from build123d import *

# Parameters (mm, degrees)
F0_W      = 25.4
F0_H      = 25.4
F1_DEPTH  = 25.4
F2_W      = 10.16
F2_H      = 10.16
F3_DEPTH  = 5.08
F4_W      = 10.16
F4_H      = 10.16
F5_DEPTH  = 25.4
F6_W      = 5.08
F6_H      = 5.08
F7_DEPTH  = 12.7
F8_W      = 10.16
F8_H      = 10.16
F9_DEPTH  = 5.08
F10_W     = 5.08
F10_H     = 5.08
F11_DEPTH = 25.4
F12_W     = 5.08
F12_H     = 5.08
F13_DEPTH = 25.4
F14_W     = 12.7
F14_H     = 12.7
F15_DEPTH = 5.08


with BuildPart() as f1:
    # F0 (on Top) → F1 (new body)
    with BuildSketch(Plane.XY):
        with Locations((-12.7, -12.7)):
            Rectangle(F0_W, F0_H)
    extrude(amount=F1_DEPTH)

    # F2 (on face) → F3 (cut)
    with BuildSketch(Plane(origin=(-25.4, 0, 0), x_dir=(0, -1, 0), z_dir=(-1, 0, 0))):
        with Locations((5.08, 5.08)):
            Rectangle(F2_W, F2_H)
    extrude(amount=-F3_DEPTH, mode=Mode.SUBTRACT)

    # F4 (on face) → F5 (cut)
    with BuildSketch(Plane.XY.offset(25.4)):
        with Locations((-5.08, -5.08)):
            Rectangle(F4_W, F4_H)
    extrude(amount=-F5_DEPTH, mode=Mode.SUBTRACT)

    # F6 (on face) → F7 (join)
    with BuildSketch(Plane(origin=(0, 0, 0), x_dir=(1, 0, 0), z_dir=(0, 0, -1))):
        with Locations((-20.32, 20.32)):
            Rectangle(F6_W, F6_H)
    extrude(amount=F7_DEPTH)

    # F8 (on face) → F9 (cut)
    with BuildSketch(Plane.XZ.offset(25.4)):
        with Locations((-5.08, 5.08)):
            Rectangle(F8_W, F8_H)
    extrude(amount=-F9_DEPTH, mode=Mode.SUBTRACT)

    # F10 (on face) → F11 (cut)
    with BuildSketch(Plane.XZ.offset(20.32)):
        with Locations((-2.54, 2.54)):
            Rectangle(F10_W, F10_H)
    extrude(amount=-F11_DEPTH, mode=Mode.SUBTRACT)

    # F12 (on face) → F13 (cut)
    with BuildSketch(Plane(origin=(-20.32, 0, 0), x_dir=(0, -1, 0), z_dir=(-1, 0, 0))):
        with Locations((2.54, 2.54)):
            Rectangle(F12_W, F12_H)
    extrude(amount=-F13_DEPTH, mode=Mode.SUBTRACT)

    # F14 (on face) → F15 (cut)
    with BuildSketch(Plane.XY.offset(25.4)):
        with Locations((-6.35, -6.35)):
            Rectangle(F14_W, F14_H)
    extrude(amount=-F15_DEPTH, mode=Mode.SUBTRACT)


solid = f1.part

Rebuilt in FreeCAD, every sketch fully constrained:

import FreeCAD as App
import Part
import Sketcher
Q = App.Units.Quantity


def add_polygon(sketch, points):
    """Adds a closed chain of lines whose ends are joined by coincident constraints."""
    first, n = sketch.GeometryCount, len(points)
    for a, b in zip(points, points[1:] + points[:1]):
        sketch.addGeometry(Part.LineSegment(App.Vector(*a, 0), App.Vector(*b, 0)), False)
    for i in range(n):
        sketch.addConstraint(Sketcher.Constraint("Coincident", first + i, 2, first + (i + 1) % n, 1))

doc = App.newDocument("Part")
params = doc.addObject("Spreadsheet::Sheet", "Params")
for row, (alias, value) in enumerate([
    ("sketch1_width", "1 in"),
    ("pad1_length", "1 in"),
    ("sketch2_width", "0.4 in"),
    ("pocket1_length", "0.2 in"),
    ("sketch3_width", "0.4 in"),
    ("pocket2_length", "1 in"),
    ("sketch4_width", "0.2 in"),
    ("pad2_length", "0.5 in"),
    ("sketch5_width", "0.4 in"),
    ("pocket3_length", "0.2 in"),
    ("sketch6_width", "0.2 in"),
    ("pocket4_length", "1 in"),
    ("sketch7_width", "0.2 in"),
    ("pocket5_length", "1 in"),
    ("sketch8_width", "0.5 in"),
    ("pocket6_length", "0.2 in"),
], start=1):
    params.set(f"A{row}", alias)
    params.set(f"B{row}", "=" + value)
    params.setAlias(f"B{row}", alias)

body = doc.addObject("PartDesign::Body", "Body")

# Sketch on XY plane
sketch1 = doc.addObject("Sketcher::SketchObject", "Sketch")
body.addObject(sketch1)
sketch1.AttachmentSupport = (doc.XY_Plane, [""])
sketch1.MapMode = "FlatFace"
add_polygon(sketch1, [(-25, 0), (-25, -25), (0, -25), (0, 0)])  # lines 0-3
sketch1.addConstraint([
    Sketcher.Constraint("Vertical", 0),
    Sketcher.Constraint("Horizontal", 1),
    Sketcher.Constraint("Vertical", 2),
    Sketcher.Constraint("Horizontal", 3),
    Sketcher.Constraint("Coincident", 2, 2, -1, 1),
    Sketcher.Constraint("Equal", 3, 0),
    Sketcher.Constraint("DistanceX", 1, 1, 1, 2, Q("1 in")),
])
sketch1.setExpression("Constraints[10]", "Params.sketch1_width")
pad1 = doc.addObject("PartDesign::Pad", "Pad")
body.addObject(pad1)
pad1.Profile = sketch1
pad1.setExpression("Length", "Params.pad1_length")

# Sketch on YZ plane
sketch2 = doc.addObject("Sketcher::SketchObject", "Sketch001")
body.addObject(sketch2)
sketch2.AttachmentSupport = (doc.YZ_Plane, [""])
sketch2.MapMode = "FlatFace"
sketch2.AttachmentOffset = App.Placement(App.Vector(0, 0, -1 * 25.4), App.Rotation())
add_polygon(sketch2, [(0, 10), (0, 0), (-10, 0), (-10, 10)])  # lines 0-3
sketch2.addConstraint([
    Sketcher.Constraint("Vertical", 0),
    Sketcher.Constraint("Horizontal", 1),
    Sketcher.Constraint("Vertical", 2),
    Sketcher.Constraint("Horizontal", 3),
    Sketcher.Constraint("Coincident", 0, 2, -1, 1),
    Sketcher.Constraint("Equal", 3, 0),
    Sketcher.Constraint("DistanceX", 1, 2, 1, 1, Q("0.4 in")),
])
sketch2.setExpression("Constraints[10]", "Params.sketch2_width")
pocket1 = doc.addObject("PartDesign::Pocket", "Pocket")
body.addObject(pocket1)
pocket1.Profile = sketch2
pocket1.setExpression("Length", "Params.pocket1_length")
pocket1.Reversed = True

# Sketch on XY plane
sketch3 = doc.addObject("Sketcher::SketchObject", "Sketch002")
body.addObject(sketch3)
sketch3.AttachmentSupport = (doc.XY_Plane, [""])
sketch3.MapMode = "FlatFace"
sketch3.AttachmentOffset = App.Placement(App.Vector(0, 0, 1 * 25.4), App.Rotation())
add_polygon(sketch3, [(-10, 0), (-10, -10), (0, -10), (0, 0)])  # lines 0-3
sketch3.addConstraint([
    Sketcher.Constraint("Vertical", 0),
    Sketcher.Constraint("Horizontal", 1),
    Sketcher.Constraint("Vertical", 2),
    Sketcher.Constraint("Horizontal", 3),
    Sketcher.Constraint("Coincident", 2, 2, -1, 1),
    Sketcher.Constraint("Equal", 3, 0),
    Sketcher.Constraint("DistanceX", 1, 1, 1, 2, Q("0.4 in")),
])
sketch3.setExpression("Constraints[10]", "Params.sketch3_width")
pocket2 = doc.addObject("PartDesign::Pocket", "Pocket001")
body.addObject(pocket2)
pocket2.Profile = sketch3
pocket2.setExpression("Length", "Params.pocket2_length")

# Sketch on XY plane
sketch4 = doc.addObject("Sketcher::SketchObject", "Sketch003")
body.addObject(sketch4)
sketch4.AttachmentSupport = (doc.XY_Plane, [""])
sketch4.MapMode = "FlatFace"
add_polygon(sketch4, [(-23, -23), (-23, -18), (-18, -18), (-18, -23)])  # lines 0-3
sketch4.addConstraint([
    Sketcher.Constraint("Vertical", 0),
    Sketcher.Constraint("Horizontal", 1),
    Sketcher.Constraint("Vertical", 2),
    Sketcher.Constraint("Horizontal", 3),
    Sketcher.Constraint("Equal", 3, 0),
    Sketcher.Constraint("DistanceX", 1, 1, 1, 2, Q("0.2 in")),
    Sketcher.Constraint("DistanceX", 0, 2, -1, 1, Q("0.9 in")),
    Sketcher.Constraint("DistanceY", 0, 2, -1, 1, Q("0.7 in")),
])
sketch4.setExpression("Constraints[9]", "Params.sketch4_width")
pad2 = doc.addObject("PartDesign::Pad", "Pad001")
body.addObject(pad2)
pad2.Profile = sketch4
pad2.setExpression("Length", "Params.pad2_length")
pad2.Reversed = True

# Sketch on XZ plane
sketch5 = doc.addObject("Sketcher::SketchObject", "Sketch004")
body.addObject(sketch5)
sketch5.AttachmentSupport = (doc.XZ_Plane, [""])
sketch5.MapMode = "FlatFace"
sketch5.AttachmentOffset = App.Placement(App.Vector(0, 0, 1 * 25.4), App.Rotation())
add_polygon(sketch5, [(-10, 10), (-10, 0), (0, 0), (0, 10)])  # lines 0-3
sketch5.addConstraint([
    Sketcher.Constraint("Vertical", 0),
    Sketcher.Constraint("Horizontal", 1),
    Sketcher.Constraint("Vertical", 2),
    Sketcher.Constraint("Horizontal", 3),
    Sketcher.Constraint("Coincident", 1, 2, -1, 1),
    Sketcher.Constraint("Equal", 3, 0),
    Sketcher.Constraint("DistanceX", 1, 1, 1, 2, Q("0.4 in")),
])
sketch5.setExpression("Constraints[10]", "Params.sketch5_width")
pocket3 = doc.addObject("PartDesign::Pocket", "Pocket002")
body.addObject(pocket3)
pocket3.Profile = sketch5
pocket3.setExpression("Length", "Params.pocket3_length")

# Sketch on XZ plane
sketch6 = doc.addObject("Sketcher::SketchObject", "Sketch005")
body.addObject(sketch6)
sketch6.AttachmentSupport = (doc.XZ_Plane, [""])
sketch6.MapMode = "FlatFace"
sketch6.AttachmentOffset = App.Placement(App.Vector(0, 0, 0.8 * 25.4), App.Rotation())
add_polygon(sketch6, [(-5, 5), (-5, 0), (0, 0), (0, 5)])  # lines 0-3
sketch6.addConstraint([
    Sketcher.Constraint("Vertical", 0),
    Sketcher.Constraint("Horizontal", 1),
    Sketcher.Constraint("Vertical", 2),
    Sketcher.Constraint("Horizontal", 3),
    Sketcher.Constraint("Coincident", 1, 2, -1, 1),
    Sketcher.Constraint("Equal", 3, 0),
    Sketcher.Constraint("DistanceX", 1, 1, 1, 2, Q("0.2 in")),
])
sketch6.setExpression("Constraints[10]", "Params.sketch6_width")
pocket4 = doc.addObject("PartDesign::Pocket", "Pocket003")
body.addObject(pocket4)
pocket4.Profile = sketch6
pocket4.setExpression("Length", "Params.pocket4_length")

# Sketch on YZ plane
sketch7 = doc.addObject("Sketcher::SketchObject", "Sketch006")
body.addObject(sketch7)
sketch7.AttachmentSupport = (doc.YZ_Plane, [""])
sketch7.MapMode = "FlatFace"
sketch7.AttachmentOffset = App.Placement(App.Vector(0, 0, -0.8 * 25.4), App.Rotation())
add_polygon(sketch7, [(0, 5), (0, 0), (-5, 0), (-5, 5)])  # lines 0-3
sketch7.addConstraint([
    Sketcher.Constraint("Vertical", 0),
    Sketcher.Constraint("Horizontal", 1),
    Sketcher.Constraint("Vertical", 2),
    Sketcher.Constraint("Horizontal", 3),
    Sketcher.Constraint("Coincident", 0, 2, -1, 1),
    Sketcher.Constraint("Equal", 3, 0),
    Sketcher.Constraint("DistanceX", 1, 2, 1, 1, Q("0.2 in")),
])
sketch7.setExpression("Constraints[10]", "Params.sketch7_width")
pocket5 = doc.addObject("PartDesign::Pocket", "Pocket004")
body.addObject(pocket5)
pocket5.Profile = sketch7
pocket5.setExpression("Length", "Params.pocket5_length")
pocket5.Reversed = True

# Sketch on XY plane
sketch8 = doc.addObject("Sketcher::SketchObject", "Sketch007")
body.addObject(sketch8)
sketch8.AttachmentSupport = (doc.XY_Plane, [""])
sketch8.MapMode = "FlatFace"
sketch8.AttachmentOffset = App.Placement(App.Vector(0, 0, 1 * 25.4), App.Rotation())
add_polygon(sketch8, [(-13, 0), (-13, -13), (0, -13), (0, 0)])  # lines 0-3
sketch8.addConstraint([
    Sketcher.Constraint("Vertical", 0),
    Sketcher.Constraint("Horizontal", 1),
    Sketcher.Constraint("Vertical", 2),
    Sketcher.Constraint("Horizontal", 3),
    Sketcher.Constraint("Coincident", 2, 2, -1, 1),
    Sketcher.Constraint("Equal", 3, 0),
    Sketcher.Constraint("DistanceX", 1, 1, 1, 2, Q("0.5 in")),
])
sketch8.setExpression("Constraints[10]", "Params.sketch8_width")
pocket6 = doc.addObject("PartDesign::Pocket", "Pocket005")
body.addObject(pocket6)
pocket6.Profile = sketch8
pocket6.setExpression("Length", "Params.pocket6_length")

doc.recompute()
